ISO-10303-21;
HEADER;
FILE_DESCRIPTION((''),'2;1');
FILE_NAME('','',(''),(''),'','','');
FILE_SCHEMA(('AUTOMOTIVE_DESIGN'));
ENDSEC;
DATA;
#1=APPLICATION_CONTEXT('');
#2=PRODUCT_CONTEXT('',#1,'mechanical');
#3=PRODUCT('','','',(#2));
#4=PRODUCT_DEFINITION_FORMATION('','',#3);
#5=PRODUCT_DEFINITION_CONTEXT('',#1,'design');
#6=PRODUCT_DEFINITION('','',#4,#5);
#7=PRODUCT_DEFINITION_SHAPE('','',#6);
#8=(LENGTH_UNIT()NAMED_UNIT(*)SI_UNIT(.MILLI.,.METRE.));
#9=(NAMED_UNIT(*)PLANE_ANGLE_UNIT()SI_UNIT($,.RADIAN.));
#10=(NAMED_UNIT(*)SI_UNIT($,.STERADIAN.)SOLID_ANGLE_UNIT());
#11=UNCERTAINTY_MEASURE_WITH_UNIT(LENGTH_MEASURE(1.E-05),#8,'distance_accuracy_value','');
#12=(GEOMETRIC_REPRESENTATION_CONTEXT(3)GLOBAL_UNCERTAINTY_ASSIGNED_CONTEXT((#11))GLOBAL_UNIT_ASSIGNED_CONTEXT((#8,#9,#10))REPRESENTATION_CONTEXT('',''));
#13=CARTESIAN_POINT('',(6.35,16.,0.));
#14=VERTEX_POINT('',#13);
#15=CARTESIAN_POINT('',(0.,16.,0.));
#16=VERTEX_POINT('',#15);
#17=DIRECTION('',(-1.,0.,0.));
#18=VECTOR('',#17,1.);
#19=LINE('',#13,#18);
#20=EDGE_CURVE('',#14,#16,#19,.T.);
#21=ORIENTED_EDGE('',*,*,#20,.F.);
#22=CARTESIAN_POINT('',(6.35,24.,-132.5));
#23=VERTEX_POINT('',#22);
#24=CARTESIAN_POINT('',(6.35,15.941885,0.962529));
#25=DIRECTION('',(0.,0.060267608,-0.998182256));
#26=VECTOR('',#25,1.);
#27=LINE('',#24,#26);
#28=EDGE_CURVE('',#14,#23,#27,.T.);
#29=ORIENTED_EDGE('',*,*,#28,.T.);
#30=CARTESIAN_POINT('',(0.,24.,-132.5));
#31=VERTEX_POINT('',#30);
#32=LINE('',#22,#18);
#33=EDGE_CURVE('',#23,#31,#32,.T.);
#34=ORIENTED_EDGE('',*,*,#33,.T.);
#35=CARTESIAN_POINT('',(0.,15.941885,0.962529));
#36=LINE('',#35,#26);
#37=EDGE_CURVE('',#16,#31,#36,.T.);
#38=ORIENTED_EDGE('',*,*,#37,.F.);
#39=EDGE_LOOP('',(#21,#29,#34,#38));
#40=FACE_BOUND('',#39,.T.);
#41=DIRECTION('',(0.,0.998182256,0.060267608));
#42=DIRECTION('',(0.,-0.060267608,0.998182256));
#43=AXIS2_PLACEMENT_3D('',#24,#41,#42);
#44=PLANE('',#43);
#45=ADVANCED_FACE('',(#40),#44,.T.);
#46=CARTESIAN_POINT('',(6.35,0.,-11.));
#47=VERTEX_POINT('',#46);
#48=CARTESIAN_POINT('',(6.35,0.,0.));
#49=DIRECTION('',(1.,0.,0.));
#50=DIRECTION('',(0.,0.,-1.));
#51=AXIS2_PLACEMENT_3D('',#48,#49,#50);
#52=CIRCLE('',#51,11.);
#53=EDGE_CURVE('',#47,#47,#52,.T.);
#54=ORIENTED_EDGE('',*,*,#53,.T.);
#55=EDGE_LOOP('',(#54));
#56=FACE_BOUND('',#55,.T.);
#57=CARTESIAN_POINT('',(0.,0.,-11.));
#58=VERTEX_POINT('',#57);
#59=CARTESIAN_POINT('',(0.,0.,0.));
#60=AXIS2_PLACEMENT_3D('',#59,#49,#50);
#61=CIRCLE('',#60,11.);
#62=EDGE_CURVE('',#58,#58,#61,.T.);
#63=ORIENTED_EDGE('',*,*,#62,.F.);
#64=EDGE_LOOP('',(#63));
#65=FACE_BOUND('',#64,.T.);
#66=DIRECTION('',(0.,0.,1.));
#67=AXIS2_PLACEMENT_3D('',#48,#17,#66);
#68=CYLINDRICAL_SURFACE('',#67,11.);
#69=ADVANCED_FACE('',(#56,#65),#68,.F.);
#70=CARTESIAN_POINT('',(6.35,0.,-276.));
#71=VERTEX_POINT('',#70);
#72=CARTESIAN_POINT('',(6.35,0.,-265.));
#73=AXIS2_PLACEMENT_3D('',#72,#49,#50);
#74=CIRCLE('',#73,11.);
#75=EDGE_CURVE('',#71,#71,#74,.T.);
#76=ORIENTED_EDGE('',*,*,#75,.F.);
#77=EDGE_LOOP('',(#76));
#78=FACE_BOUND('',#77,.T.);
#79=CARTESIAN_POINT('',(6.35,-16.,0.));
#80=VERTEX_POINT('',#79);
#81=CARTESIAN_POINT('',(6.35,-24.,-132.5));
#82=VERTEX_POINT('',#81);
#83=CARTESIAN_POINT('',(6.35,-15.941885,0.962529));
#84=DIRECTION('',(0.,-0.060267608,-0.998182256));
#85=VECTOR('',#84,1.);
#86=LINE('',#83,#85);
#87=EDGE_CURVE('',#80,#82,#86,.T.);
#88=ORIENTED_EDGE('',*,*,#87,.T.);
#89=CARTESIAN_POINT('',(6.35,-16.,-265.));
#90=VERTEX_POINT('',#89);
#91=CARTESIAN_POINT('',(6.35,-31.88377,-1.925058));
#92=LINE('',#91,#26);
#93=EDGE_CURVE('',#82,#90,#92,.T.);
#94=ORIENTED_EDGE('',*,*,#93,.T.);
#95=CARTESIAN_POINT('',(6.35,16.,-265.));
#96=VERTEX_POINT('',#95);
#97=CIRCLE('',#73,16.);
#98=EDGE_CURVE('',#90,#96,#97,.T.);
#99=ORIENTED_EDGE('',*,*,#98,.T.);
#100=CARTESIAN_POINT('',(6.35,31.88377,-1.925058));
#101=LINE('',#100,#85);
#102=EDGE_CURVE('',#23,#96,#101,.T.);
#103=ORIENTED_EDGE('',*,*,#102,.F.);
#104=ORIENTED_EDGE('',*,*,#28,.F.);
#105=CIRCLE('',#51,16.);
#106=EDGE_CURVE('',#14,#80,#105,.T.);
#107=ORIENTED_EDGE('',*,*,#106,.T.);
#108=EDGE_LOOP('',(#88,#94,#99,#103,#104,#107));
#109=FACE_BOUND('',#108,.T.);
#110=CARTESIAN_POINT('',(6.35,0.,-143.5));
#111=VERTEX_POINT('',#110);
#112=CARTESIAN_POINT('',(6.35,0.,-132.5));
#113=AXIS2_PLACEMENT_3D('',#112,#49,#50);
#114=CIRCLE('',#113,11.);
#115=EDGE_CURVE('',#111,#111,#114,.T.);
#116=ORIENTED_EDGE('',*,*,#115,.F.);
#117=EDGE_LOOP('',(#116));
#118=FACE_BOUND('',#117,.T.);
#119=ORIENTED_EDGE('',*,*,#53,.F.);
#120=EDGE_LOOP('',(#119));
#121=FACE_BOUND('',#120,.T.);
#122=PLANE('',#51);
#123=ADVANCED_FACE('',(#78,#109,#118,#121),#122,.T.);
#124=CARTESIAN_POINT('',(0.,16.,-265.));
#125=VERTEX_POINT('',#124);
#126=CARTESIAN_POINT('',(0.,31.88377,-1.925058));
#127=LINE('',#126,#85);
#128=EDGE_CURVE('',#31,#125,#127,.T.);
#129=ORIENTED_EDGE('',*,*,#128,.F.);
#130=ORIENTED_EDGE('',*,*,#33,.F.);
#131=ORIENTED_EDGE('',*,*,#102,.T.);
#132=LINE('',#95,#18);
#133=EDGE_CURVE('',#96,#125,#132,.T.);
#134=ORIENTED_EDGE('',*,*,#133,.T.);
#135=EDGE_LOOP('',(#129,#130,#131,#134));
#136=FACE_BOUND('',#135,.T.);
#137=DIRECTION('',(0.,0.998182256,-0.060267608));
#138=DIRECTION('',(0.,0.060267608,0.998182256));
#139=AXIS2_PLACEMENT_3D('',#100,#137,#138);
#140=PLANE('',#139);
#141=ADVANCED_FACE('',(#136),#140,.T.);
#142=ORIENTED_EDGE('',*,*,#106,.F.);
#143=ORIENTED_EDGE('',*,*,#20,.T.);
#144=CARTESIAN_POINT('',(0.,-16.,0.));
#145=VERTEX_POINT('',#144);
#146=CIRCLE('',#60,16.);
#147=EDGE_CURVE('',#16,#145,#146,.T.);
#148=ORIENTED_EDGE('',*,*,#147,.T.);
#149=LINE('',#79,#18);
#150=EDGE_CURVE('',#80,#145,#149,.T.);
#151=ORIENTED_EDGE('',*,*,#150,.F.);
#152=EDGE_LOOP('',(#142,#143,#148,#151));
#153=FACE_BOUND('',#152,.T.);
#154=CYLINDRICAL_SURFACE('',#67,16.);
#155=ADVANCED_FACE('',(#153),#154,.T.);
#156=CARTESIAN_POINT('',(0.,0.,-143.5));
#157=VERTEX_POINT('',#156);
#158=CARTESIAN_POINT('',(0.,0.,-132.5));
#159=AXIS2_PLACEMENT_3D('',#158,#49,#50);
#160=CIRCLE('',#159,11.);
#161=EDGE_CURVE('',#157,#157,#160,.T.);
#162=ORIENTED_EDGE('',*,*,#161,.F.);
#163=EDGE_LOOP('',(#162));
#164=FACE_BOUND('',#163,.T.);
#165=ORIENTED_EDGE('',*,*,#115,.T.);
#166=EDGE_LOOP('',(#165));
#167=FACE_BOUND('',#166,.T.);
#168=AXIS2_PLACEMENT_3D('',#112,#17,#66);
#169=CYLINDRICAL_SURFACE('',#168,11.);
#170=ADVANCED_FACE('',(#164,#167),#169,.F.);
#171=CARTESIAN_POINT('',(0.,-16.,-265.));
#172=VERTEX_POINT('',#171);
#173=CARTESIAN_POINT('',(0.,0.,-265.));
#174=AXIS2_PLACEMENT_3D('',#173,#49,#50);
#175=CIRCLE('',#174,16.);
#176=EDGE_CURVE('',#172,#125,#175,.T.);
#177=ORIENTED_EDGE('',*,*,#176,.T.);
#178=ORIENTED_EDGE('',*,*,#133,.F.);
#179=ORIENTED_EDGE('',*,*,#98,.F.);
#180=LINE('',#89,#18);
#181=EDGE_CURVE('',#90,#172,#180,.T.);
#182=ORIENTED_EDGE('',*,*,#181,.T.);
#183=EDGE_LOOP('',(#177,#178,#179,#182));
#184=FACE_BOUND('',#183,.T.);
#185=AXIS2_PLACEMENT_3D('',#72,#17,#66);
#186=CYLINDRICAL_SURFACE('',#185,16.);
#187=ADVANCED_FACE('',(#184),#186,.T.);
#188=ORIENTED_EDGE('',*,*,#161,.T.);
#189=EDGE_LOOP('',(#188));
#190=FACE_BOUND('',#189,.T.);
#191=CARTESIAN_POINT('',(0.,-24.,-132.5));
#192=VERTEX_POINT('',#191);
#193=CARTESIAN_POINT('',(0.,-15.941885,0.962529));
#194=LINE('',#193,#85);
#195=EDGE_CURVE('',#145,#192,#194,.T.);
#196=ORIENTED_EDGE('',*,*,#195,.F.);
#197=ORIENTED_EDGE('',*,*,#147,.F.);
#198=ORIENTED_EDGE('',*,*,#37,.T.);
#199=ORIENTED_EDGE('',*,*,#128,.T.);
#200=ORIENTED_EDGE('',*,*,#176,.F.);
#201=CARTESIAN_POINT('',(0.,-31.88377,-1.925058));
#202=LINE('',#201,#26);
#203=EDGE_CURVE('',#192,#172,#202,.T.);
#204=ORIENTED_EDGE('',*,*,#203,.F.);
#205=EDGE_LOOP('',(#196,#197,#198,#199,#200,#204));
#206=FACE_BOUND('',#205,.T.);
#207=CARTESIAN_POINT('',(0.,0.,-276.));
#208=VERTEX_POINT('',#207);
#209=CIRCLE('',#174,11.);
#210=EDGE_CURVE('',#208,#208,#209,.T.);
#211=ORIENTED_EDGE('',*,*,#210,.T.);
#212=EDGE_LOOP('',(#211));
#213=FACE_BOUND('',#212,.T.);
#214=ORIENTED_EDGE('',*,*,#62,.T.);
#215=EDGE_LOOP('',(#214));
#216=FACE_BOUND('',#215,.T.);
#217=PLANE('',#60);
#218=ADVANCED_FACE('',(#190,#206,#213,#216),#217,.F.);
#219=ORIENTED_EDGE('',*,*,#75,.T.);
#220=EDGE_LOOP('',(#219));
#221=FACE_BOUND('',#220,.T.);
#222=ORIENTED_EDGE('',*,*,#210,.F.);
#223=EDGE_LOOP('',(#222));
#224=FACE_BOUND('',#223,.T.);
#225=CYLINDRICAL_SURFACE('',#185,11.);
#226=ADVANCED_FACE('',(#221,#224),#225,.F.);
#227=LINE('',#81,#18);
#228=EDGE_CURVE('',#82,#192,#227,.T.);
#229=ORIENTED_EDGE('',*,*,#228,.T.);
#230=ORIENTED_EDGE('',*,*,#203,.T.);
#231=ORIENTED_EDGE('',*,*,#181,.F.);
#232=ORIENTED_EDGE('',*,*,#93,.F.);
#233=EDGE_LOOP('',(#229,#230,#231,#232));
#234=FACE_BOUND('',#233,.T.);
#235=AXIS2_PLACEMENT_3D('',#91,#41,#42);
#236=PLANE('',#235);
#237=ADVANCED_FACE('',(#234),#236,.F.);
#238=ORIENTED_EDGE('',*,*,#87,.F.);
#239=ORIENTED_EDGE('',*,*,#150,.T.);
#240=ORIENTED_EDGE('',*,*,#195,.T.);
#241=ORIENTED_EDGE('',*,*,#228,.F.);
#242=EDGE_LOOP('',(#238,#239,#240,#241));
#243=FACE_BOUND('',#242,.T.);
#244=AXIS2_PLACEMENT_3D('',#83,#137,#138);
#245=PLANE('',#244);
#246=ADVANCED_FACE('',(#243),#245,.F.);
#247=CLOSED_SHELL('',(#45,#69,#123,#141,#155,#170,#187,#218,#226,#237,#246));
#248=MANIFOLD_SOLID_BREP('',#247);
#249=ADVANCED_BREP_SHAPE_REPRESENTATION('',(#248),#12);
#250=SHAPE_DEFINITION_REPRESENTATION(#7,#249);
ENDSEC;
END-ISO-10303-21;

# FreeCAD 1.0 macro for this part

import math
import FreeCAD as App
import Part
import Sketcher

doc = App.newDocument("Part")
body = doc.addObject("PartDesign::Body", "Body")

sketch1 = body.newObject("Sketcher::SketchObject", "Sketch")
sketch1.AttachmentSupport = (doc.getObject("YZ_Plane"), [""])
sketch1.MapMode = "FlatFace"
sketch1.addGeometry([
    Part.LineSegment(App.Vector(24, -132, 0), App.Vector(16, 0, 0)),
    Part.ArcOfCircle(Part.Circle(App.Vector(0, 0, 0), App.Vector(0, 0, 1), 16), math.radians(0), math.radians(180)),
    Part.LineSegment(App.Vector(-16, 0, 0), App.Vector(-24, -132, 0)),
    Part.LineSegment(App.Vector(-24, -132, 0), App.Vector(-16, -265, 0)),
    Part.ArcOfCircle(Part.Circle(App.Vector(0, -265, 0), App.Vector(0, 0, 1), 16), math.radians(180), math.radians(360)),
    Part.LineSegment(App.Vector(16, -265, 0), App.Vector(24, -132, 0)),
    Part.Circle(App.Vector(0, -265, 0), App.Vector(0, 0, 1), 11),
    Part.Circle(App.Vector(0, -132, 0), App.Vector(0, 0, 1), 11),
    Part.Circle(App.Vector(0, 0, 0), App.Vector(0, 0, 1), 11),
], False)
sketch1.addConstraint([
    Sketcher.Constraint("Coincident", 0, 2, 1, 1),
    Sketcher.Constraint("Coincident", 1, 2, 2, 1),
    Sketcher.Constraint("Coincident", 2, 2, 3, 1),
    Sketcher.Constraint("Coincident", 3, 2, 4, 1),
    Sketcher.Constraint("Coincident", 4, 2, 5, 1),
    Sketcher.Constraint("Coincident", 5, 2, 0, 1),
    Sketcher.Constraint("Coincident", 1, 3, -1, 1),
    Sketcher.Constraint("Coincident", 8, 3, -1, 1),
    Sketcher.Constraint("Coincident", 6, 3, 4, 3),
    Sketcher.Constraint("Equal", 1, 4),
    Sketcher.Constraint("Equal", 6, 7),
    Sketcher.Constraint("Equal", 7, 8),
    Sketcher.Constraint("Symmetric", 3, 2, 4, 2, -2),
    Sketcher.Constraint("Symmetric", 2, 2, 5, 2, -2),
    Sketcher.Constraint("PointOnObject", 7, 3, -2),
    Sketcher.Constraint("PointOnObject", 0, 2, -1),
    Sketcher.Constraint("PointOnObject", 1, 2, -1),
    Sketcher.Constraint("Parallel", 0, 3),
    Sketcher.Constraint("Horizontal", 7, 3, 2, 2),
    Sketcher.Constraint("Horizontal", 6, 3, 3, 2),
    Sketcher.Constraint("Diameter", 6, 22.0),
    Sketcher.Constraint("Radius", 1, 16.0),
    Sketcher.Constraint("DistanceY", 4, 3, -1, 1, 265.0),
    Sketcher.Constraint("DistanceX", 2, 2, -1, 1, 24.0),
])
pad1 = body.newObject("PartDesign::Pad", "Pad")
pad1.Profile = sketch1
pad1.Length = 6.35

doc.recompute()
